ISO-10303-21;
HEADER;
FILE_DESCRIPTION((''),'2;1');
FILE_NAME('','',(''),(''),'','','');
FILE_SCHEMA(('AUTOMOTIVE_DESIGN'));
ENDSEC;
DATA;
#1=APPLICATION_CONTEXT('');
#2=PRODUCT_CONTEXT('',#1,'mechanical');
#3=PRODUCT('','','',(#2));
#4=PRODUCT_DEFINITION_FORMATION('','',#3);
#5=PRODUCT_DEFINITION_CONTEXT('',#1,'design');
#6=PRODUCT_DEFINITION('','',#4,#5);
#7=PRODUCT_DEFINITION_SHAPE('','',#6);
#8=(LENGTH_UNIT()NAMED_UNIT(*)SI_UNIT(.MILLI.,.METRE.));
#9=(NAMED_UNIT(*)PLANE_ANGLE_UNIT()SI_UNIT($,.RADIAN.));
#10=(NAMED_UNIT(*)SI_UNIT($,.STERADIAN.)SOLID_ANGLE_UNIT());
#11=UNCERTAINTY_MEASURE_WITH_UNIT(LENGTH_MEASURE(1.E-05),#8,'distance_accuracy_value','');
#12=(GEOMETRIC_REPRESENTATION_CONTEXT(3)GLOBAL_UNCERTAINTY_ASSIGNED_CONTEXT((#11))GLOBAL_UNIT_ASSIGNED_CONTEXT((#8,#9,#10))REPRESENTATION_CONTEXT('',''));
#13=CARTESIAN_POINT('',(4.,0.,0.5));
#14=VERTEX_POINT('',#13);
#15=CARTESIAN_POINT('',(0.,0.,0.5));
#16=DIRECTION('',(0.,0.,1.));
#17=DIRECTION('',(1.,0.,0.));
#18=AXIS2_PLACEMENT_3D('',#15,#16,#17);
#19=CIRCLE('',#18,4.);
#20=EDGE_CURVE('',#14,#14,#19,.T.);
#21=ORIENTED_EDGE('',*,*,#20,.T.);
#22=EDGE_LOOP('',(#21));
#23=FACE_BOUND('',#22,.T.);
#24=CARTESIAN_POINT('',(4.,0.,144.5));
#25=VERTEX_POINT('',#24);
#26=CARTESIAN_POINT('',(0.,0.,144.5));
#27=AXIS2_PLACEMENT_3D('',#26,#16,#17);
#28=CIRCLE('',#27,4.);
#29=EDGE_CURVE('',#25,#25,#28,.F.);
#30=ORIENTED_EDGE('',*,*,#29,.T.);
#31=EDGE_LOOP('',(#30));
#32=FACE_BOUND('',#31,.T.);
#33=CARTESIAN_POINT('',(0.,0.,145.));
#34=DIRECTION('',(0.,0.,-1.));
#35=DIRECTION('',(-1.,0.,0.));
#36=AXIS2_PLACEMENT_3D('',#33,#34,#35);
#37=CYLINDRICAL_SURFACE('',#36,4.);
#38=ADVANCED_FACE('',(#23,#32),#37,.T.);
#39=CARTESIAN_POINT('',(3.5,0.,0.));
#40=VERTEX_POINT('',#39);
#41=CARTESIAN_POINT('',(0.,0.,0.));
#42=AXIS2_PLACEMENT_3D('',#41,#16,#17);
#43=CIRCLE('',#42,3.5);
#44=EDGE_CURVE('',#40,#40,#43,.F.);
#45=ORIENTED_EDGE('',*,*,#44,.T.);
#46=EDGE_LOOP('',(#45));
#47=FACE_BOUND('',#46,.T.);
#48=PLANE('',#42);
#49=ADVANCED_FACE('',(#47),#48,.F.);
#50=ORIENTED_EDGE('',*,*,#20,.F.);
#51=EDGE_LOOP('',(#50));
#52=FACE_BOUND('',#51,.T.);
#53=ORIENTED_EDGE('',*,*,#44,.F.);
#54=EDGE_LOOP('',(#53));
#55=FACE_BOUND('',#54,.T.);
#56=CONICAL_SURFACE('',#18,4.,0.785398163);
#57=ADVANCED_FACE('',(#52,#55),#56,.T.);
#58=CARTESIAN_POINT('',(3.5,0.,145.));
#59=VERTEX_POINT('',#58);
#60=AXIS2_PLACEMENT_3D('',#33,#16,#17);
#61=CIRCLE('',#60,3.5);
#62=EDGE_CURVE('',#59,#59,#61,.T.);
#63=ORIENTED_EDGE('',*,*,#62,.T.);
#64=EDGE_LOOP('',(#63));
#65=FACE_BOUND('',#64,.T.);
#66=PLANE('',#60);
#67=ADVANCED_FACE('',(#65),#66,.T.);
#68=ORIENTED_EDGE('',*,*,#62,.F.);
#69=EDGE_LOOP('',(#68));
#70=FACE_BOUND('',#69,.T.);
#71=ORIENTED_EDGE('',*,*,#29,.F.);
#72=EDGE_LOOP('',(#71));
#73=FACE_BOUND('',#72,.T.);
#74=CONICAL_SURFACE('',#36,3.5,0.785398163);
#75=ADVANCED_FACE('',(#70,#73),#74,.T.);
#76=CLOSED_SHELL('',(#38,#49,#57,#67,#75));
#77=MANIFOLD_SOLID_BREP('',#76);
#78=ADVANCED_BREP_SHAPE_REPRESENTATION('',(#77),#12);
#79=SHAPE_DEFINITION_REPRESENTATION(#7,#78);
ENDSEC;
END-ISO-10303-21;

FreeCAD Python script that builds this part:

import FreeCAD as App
import Part
import Sketcher
Q = App.Units.Quantity


def edges_at(feature, points):
    """Names of the edges that pass closest to the given points."""
    edges = feature.Shape.Edges
    near = lambda p: min(range(len(edges)), key=lambda i: edges[i].distToShape(Part.Vertex(*p))[0])
    return sorted({f"Edge{near(p) + 1}" for p in points})

doc = App.newDocument("Part")
body = doc.addObject("PartDesign::Body", "Body")

sketch1 = body.newObject("Sketcher::SketchObject", "Sketch")
sketch1.AttachmentSupport = (doc.getObject("XY_Plane"), [""])
sketch1.MapMode = "FlatFace"
sketch1.addGeometry(Part.Circle(App.Vector(0, 0, 0), App.Vector(0, 0, 1), 4), False)
sketch1.addConstraint([
    Sketcher.Constraint("Coincident", 0, 3, -1, 1),
    Sketcher.Constraint("Diameter", 0, Q("8 mm")),
])
pad1 = body.newObject("PartDesign::Pad", "Pad")
pad1.Profile = sketch1
pad1.Length = 145
doc.recompute()

chamfer = body.newObject("PartDesign::Chamfer", "Chamfer")
chamfer.Base = (pad1, edges_at(pad1, [(-4, 0, 0), (-4, 0, 145)]))
chamfer.Size = 0.5

doc.recompute()
